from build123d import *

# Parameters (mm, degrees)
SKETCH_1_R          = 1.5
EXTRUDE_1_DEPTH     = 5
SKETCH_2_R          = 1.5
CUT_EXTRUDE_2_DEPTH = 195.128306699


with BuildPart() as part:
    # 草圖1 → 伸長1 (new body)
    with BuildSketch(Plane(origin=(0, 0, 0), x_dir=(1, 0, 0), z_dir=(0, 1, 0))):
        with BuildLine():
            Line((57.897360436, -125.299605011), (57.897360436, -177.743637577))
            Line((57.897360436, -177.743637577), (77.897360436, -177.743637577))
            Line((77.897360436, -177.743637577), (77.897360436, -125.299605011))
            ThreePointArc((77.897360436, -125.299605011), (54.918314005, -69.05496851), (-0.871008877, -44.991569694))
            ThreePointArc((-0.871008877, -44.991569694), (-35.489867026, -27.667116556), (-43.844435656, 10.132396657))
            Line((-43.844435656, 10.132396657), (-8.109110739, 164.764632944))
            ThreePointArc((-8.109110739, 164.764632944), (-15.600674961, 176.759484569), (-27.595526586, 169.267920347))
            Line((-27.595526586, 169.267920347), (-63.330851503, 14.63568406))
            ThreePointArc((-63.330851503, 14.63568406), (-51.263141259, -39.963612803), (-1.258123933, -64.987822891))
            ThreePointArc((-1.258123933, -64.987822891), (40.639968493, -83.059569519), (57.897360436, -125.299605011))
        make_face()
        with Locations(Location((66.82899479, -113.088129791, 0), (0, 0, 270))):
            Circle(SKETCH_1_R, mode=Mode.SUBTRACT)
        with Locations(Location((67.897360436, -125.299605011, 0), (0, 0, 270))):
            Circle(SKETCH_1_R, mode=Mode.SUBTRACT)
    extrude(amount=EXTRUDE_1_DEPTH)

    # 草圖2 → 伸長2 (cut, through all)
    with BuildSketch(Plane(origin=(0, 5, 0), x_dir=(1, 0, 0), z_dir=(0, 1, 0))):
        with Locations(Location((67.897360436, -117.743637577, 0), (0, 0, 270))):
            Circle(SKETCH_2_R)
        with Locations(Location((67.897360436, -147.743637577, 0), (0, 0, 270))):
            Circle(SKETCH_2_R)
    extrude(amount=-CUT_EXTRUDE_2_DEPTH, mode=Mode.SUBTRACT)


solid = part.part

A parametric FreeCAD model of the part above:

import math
import FreeCAD as App
import Part
import Sketcher

V = App.Vector

doc = App.newDocument("Part")
body = doc.addObject("PartDesign::Body", "Body")

sketch1 = doc.addObject("Sketcher::SketchObject", "Sketch")
body.addObject(sketch1)
sketch1.AttachmentSupport = (doc.XZ_Plane, [""])
sketch1.MapMode = "FlatFace"
sketch1.addGeometry(Part.LineSegment(V(57.9, 125.3, 0), V(57.9, 177.7, 0)), False)
sketch1.addGeometry(Part.LineSegment(V(57.9, 177.7, 0), V(77.9, 177.7, 0)), False)
sketch1.addGeometry(Part.LineSegment(V(77.9, 177.7, 0), V(77.9, 125.3, 0)), False)
sketch1.addGeometry(Part.ArcOfCircle(Part.Circle(V(-2.4, 125.3, 0), V(0, 0, 1), 80.3), math.radians(-89), math.radians(0)), False)
sketch1.addGeometry(Part.ArcOfCircle(Part.Circle(V(0, 0, 0), V(0, 0, 1), 45), math.radians(91), math.radians(193)), False)
sketch1.addGeometry(Part.LineSegment(V(-43.8, -10.1, 0), V(-8.1, -164.8, 0)), False)
sketch1.addGeometry(Part.ArcOfCircle(Part.Circle(V(-17.9, -167, 0), V(0, 0, 1), 10), math.radians(-167), math.radians(13)), False)
sketch1.addGeometry(Part.LineSegment(V(-27.6, -169.3, 0), V(-63.3, -14.6, 0)), False)
sketch1.addGeometry(Part.ArcOfCircle(Part.Circle(V(0, 0, 0), V(0, 0, 1), 65), math.radians(91), math.radians(193)), False)
sketch1.addGeometry(Part.ArcOfCircle(Part.Circle(V(-2.4, 125.3, 0), V(0, 0, 1), 60.3), math.radians(-89), math.radians(0)), False)
sketch1.addGeometry(Part.Circle(V(67.9, 125.3, 0), V(0, 0, 1), 1.5), False)
sketch1.addGeometry(Part.Circle(V(66.8, 113.1, 0), V(0, 0, 1), 1.5), False)
sketch1.addConstraint(Sketcher.Constraint("Coincident", 0, 2, 1, 1))
sketch1.addConstraint(Sketcher.Constraint("Coincident", 1, 2, 2, 1))
sketch1.addConstraint(Sketcher.Constraint("Tangent", 2, 2, 3, 2))
sketch1.addConstraint(Sketcher.Constraint("Tangent", 3, 1, 4, 1))
sketch1.addConstraint(Sketcher.Constraint("Tangent", 4, 2, 5, 1))
sketch1.addConstraint(Sketcher.Constraint("Tangent", 5, 2, 6, 2))
sketch1.addConstraint(Sketcher.Constraint("Tangent", 6, 1, 7, 1))
sketch1.addConstraint(Sketcher.Constraint("Tangent", 7, 2, 8, 2))
sketch1.addConstraint(Sketcher.Constraint("Tangent", 8, 1, 9, 1))
sketch1.addConstraint(Sketcher.Constraint("Tangent", 9, 2, 0, 1))
sketch1.addConstraint(Sketcher.Constraint("Vertical", 0))
sketch1.addConstraint(Sketcher.Constraint("Horizontal", 1))
sketch1.addConstraint(Sketcher.Constraint("Vertical", 2))
sketch1.addConstraint(Sketcher.Constraint("Coincident", 4, 3, -1, 1))
sketch1.addConstraint(Sketcher.Constraint("Coincident", 8, 3, -1, 1))
sketch1.addConstraint(Sketcher.Constraint("Coincident", 9, 3, 3, 3))
sketch1.addConstraint(Sketcher.Constraint("Equal", 10, 11))
sketch1.addConstraint(Sketcher.Constraint("Parallel", 5, 7))
sketch1.addConstraint(Sketcher.Constraint("Horizontal", 9, 3, 10, 3))
sketch1.addConstraint(Sketcher.Constraint("Diameter", 10, 3.0))
sketch1.addConstraint(Sketcher.Constraint("Radius", 4, 45.0))
sketch1.addConstraint(Sketcher.Constraint("Radius", 6, 10.0))
sketch1.addConstraint(Sketcher.Constraint("DistanceX", 0, 2, 10, 3, 10.0))
sketch1.addConstraint(Sketcher.Constraint("Radius", 3, 80.323083))
sketch1.addConstraint(Sketcher.Constraint("DistanceY", 4, 2, 9, 3, 135.432002))
sketch1.addConstraint(Sketcher.Constraint("DistanceX", 5, 2, 3, 1, 7.238102))
sketch1.addConstraint(Sketcher.Constraint("DistanceY", 0, 1, 0, 2, 52.444033))
sketch1.addConstraint(Sketcher.Constraint("DistanceX", 6, 3, -1, 1, 17.852319))
sketch1.addConstraint(Sketcher.Constraint("DistanceY", -1, 1, 11, 3, 113.08813))
sketch1.addConstraint(Sketcher.Constraint("DistanceX", -1, 1, 11, 3, 66.828995))
pad1 = doc.addObject("PartDesign::Pad", "Pad")
body.addObject(pad1)
pad1.Profile = sketch1
pad1.Length = 5
pad1.Reversed = True

sketch2 = doc.addObject("Sketcher::SketchObject", "Sketch001")
body.addObject(sketch2)
sketch2.AttachmentSupport = (doc.XZ_Plane, [""])
sketch2.MapMode = "FlatFace"
sketch2.AttachmentOffset = App.Placement(V(0, 0, -5), App.Rotation())
sketch2.addGeometry(Part.Circle(V(67.9, 117.7, 0), V(0, 0, 1), 1.5), False)
sketch2.addGeometry(Part.Circle(V(67.9, 147.7, 0), V(0, 0, 1), 1.5), False)
sketch2.addConstraint(Sketcher.Constraint("Equal", 0, 1))
sketch2.addConstraint(Sketcher.Constraint("Vertical", 0, 3, 1, 3))
sketch2.addConstraint(Sketcher.Constraint("Diameter", 0, 3.0))
sketch2.addConstraint(Sketcher.Constraint("DistanceY", 0, 3, 1, 3, 30.0))
sketch2.addConstraint(Sketcher.Constraint("DistanceX", -1, 1, 0, 3, 67.89736))
sketch2.addConstraint(Sketcher.Constraint("DistanceY", -1, 1, 0, 3, 117.743638))
pocket1 = doc.addObject("PartDesign::Pocket", "Pocket")
body.addObject(pocket1)
pocket1.Profile = sketch2
pocket1.Type = "ThroughAll"
pocket1.Reversed = True

doc.recompute()
